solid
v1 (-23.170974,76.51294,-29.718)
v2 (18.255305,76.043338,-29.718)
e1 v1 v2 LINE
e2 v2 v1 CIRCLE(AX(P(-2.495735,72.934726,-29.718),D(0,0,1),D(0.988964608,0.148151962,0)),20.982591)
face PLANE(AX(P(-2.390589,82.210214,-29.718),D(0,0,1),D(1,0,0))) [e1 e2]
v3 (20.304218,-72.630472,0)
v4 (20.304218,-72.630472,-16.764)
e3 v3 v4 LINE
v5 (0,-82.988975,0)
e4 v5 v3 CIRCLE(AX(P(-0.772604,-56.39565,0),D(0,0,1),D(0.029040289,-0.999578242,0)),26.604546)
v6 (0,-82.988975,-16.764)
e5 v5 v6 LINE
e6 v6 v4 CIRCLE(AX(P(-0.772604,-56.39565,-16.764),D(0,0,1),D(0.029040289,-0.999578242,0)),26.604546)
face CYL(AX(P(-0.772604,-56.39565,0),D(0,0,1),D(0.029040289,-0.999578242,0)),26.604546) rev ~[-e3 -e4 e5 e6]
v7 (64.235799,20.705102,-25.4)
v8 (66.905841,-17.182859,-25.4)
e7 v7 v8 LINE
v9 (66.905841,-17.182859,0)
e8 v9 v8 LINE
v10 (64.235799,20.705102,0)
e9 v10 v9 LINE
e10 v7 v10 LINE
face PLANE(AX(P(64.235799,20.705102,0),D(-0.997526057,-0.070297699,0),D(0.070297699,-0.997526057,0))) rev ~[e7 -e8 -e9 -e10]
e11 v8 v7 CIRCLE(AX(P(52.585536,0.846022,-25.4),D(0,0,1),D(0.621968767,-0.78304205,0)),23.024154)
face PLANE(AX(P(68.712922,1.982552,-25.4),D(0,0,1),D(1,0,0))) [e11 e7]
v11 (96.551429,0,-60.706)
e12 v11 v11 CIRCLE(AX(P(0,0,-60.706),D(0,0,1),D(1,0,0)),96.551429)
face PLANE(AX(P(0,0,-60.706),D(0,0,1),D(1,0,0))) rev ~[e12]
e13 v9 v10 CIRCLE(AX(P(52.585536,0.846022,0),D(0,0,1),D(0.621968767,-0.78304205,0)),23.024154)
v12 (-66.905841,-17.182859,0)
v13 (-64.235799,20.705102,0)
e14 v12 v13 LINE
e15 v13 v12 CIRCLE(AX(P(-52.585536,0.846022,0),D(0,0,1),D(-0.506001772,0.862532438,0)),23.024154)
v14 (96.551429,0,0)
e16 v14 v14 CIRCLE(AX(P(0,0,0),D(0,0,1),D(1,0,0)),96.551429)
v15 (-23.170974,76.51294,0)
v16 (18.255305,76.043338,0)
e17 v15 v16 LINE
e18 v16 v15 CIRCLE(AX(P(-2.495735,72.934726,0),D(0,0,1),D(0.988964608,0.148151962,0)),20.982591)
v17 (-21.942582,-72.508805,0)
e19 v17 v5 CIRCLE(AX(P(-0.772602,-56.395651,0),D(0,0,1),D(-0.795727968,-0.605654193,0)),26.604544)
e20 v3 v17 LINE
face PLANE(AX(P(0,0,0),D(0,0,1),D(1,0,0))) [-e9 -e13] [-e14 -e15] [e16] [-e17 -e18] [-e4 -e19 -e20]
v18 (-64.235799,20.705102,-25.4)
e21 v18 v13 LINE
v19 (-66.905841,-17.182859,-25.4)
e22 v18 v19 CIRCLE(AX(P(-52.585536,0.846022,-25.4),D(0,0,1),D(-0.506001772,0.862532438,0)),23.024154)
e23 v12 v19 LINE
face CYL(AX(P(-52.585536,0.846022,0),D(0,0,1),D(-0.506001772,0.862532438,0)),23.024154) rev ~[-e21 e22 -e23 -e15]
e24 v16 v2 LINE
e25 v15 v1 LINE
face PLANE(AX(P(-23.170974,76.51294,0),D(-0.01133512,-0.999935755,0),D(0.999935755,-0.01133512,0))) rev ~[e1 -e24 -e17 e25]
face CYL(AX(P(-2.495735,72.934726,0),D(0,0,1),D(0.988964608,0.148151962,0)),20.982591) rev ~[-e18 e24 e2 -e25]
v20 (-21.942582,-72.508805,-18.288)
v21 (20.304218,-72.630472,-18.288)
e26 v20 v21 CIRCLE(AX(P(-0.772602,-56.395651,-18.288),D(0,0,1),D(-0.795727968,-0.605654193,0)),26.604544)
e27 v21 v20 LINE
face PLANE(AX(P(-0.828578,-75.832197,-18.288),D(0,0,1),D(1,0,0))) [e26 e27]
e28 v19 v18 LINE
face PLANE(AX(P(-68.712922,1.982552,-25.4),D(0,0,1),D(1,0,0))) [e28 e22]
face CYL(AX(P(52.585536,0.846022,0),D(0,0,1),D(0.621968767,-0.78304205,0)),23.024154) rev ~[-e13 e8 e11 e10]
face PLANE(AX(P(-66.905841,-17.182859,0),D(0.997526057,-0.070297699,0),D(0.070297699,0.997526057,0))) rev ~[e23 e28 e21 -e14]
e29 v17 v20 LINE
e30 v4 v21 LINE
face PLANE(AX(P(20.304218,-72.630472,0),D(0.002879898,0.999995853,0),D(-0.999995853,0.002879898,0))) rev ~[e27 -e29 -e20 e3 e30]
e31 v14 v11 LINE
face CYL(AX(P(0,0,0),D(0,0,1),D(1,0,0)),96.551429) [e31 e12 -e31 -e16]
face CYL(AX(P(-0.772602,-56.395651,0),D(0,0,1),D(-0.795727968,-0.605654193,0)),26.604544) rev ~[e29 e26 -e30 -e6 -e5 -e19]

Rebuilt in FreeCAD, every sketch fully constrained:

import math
import FreeCAD as App
import Part
import Sketcher
Q = App.Units.Quantity

doc = App.newDocument("Part")
body = doc.addObject("PartDesign::Body", "Body")

# Sketch on XY plane
sketch1 = body.newObject("Sketcher::SketchObject", "Sketch")
sketch1.AttachmentSupport = (doc.getObject("XY_Plane"), [""])
sketch1.MapMode = "FlatFace"
sketch1.addGeometry(Part.Circle(App.Vector(0, 0, 0), App.Vector(0, 0, 1), 96.551429), False)
sketch1.addConstraint([
    Sketcher.Constraint("Coincident", 0, 3, -1, 1),
    Sketcher.Constraint("Diameter", 0, Q("193.102858 mm")),
])
pad1 = body.newObject("PartDesign::Pad", "Pad")
pad1.Profile = sketch1
pad1.Length = Q("2.39 in")
pad1.Reversed = True

# Sketch on XY plane
sketch2 = body.newObject("Sketcher::SketchObject", "Sketch001")
sketch2.AttachmentSupport = (doc.getObject("XY_Plane"), [""])
sketch2.MapMode = "FlatFace"
sketch2.addGeometry([
    Part.LineSegment(App.Vector(0, -72.571998, 0), App.Vector(0, -82.988975, 0)),
    Part.ArcOfCircle(Part.Circle(App.Vector(-0.772604, -56.39565, 0), App.Vector(0, 0, 1), 26.604546), math.radians(-88.33588), math.radians(-37.605946)),
    Part.LineSegment(App.Vector(20.304218, -72.630472, 0), App.Vector(0, -72.571998, 0)),
], False)
sketch2.addConstraint([
    Sketcher.Constraint("Coincident", 0, 2, 1, 1),
    Sketcher.Constraint("Coincident", 1, 2, 2, 1),
    Sketcher.Constraint("Coincident", 2, 2, 0, 1),
    Sketcher.Constraint("Vertical", 0),
    Sketcher.Constraint("PointOnObject", 0, 2, -2),
    Sketcher.Constraint("Radius", 1, Q("26.604546 mm")),
    Sketcher.Constraint("DistanceY", 0, 2, 0, 1, Q("10.416977 mm")),
    Sketcher.Constraint("DistanceY", 1, 3, -1, 1, Q("56.39565 mm")),
    Sketcher.Constraint("DistanceY", 1, 2, -1, 1, Q("72.630472 mm")),
    Sketcher.Constraint("DistanceY", 2, 2, 1, 3, Q("16.176348 mm")),
])
pocket1 = body.newObject("PartDesign::Pocket", "Pocket")
pocket1.Profile = sketch2
pocket1.Length = Q("0.66 in")

# Sketch on XY plane
sketch3 = body.newObject("Sketcher::SketchObject", "Sketch002")
sketch3.AttachmentSupport = (doc.getObject("XY_Plane"), [""])
sketch3.MapMode = "FlatFace"
sketch3.addGeometry([
    Part.LineSegment(App.Vector(20.304218, -72.630472, 0), App.Vector(-21.942582, -72.508805, 0)),
    Part.ArcOfCircle(Part.Circle(App.Vector(-0.772602, -56.395651, 0), App.Vector(0, 0, 1), 26.604544), math.radians(-142.724068), math.radians(-37.605944)),
], False)
sketch3.addConstraint([
    Sketcher.Constraint("Coincident", 0, 1, 1, 2),
    Sketcher.Constraint("Coincident", 1, 1, 0, 2),
    Sketcher.Constraint("Radius", 1, Q("26.604544 mm")),
    Sketcher.Constraint("DistanceX", 1, 1, 0, 1, Q("42.2468 mm")),
    Sketcher.Constraint("DistanceY", 1, 3, -1, 1, Q("56.395651 mm")),
    Sketcher.Constraint("DistanceY", 0, 1, -1, 1, Q("72.630472 mm")),
    Sketcher.Constraint("DistanceX", 1, 1, -1, 1, Q("21.942582 mm")),
])
pocket2 = body.newObject("PartDesign::Pocket", "Pocket001")
pocket2.Profile = sketch3
pocket2.Length = Q("0.72 in")

# Sketch on XY plane
sketch4 = body.newObject("Sketcher::SketchObject", "Sketch003")
sketch4.AttachmentSupport = (doc.getObject("XY_Plane"), [""])
sketch4.MapMode = "FlatFace"
sketch4.addGeometry([
    Part.LineSegment(App.Vector(-23.170974, 76.51294, 0), App.Vector(18.255305, 76.043338, 0)),
    Part.ArcOfCircle(Part.Circle(App.Vector(-2.495735, 72.934726, 0), App.Vector(0, 0, 1), 20.982591), math.radians(8.519845), math.radians(170.181218)),
], False)
sketch4.addConstraint([
    Sketcher.Constraint("Coincident", 0, 1, 1, 2),
    Sketcher.Constraint("Coincident", 1, 1, 0, 2),
    Sketcher.Constraint("Radius", 1, Q("20.982591 mm")),
    Sketcher.Constraint("DistanceY", 1, 1, 0, 1, Q("0.469602 mm")),
    Sketcher.Constraint("Distance", 0, Q("41.428941 mm")),
    Sketcher.Constraint("DistanceY", -1, 1, 0, 1, Q("76.51294 mm")),
    Sketcher.Constraint("DistanceX", 1, 3, -1, 1, Q("2.495735 mm")),
])
pocket3 = body.newObject("PartDesign::Pocket", "Pocket002")
pocket3.Profile = sketch4
pocket3.Length = Q("1.17 in")

# Sketch on XY plane
sketch5 = body.newObject("Sketcher::SketchObject", "Sketch004")
sketch5.AttachmentSupport = (doc.getObject("XY_Plane"), [""])
sketch5.MapMode = "FlatFace"
sketch5.addGeometry([
    Part.LineSegment(App.Vector(64.235799, 20.705102, 0), App.Vector(66.905841, -17.182859, 0)),
    Part.ArcOfCircle(Part.Circle(App.Vector(52.585536, 0.846022, 0), App.Vector(0, 0, 1), 23.024154), math.radians(-51.539953), math.radians(59.602125)),
    Part.ArcOfCircle(Part.Circle(App.Vector(-52.585536, 0.846022, 0), App.Vector(0, 0, 1), 23.024154), math.radians(120.397875), math.radians(231.539953)),
    Part.LineSegment(App.Vector(-66.905841, -17.182859, 0), App.Vector(-64.235799, 20.705102, 0)),
], False)
sketch5.addConstraint([
    Sketcher.Constraint("Coincident", 0, 1, 1, 2),
    Sketcher.Constraint("Coincident", 1, 1, 0, 2),
    Sketcher.Constraint("Coincident", 2, 1, 3, 2),
    Sketcher.Constraint("Coincident", 3, 1, 2, 2),
    Sketcher.Constraint("Equal", 1, 2),
    Sketcher.Constraint("Symmetric", 1, 3, 2, 3, -2),
    Sketcher.Constraint("Horizontal", 0, 1, 2, 1),
    Sketcher.Constraint("Horizontal", 1, 1, 3, 1),
    Sketcher.Constraint("Radius", 1, Q("23.024154 mm")),
    Sketcher.Constraint("DistanceX", -1, 1, 0, 1, Q("64.235799 mm")),
    Sketcher.Constraint("DistanceY", -1, 1, 0, 1, Q("20.705102 mm")),
    Sketcher.Constraint("DistanceX", -1, 1, 1, 1, Q("66.905841 mm")),
    Sketcher.Constraint("DistanceY", 1, 1, -1, 1, Q("17.182859 mm")),
])
pocket4 = body.newObject("PartDesign::Pocket", "Pocket003")
pocket4.Profile = sketch5
pocket4.Length = Q("0.98 in")

# Sketch on XY plane
sketch6 = body.newObject("Sketcher::SketchObject", "Sketch005")
sketch6.AttachmentSupport = (doc.getObject("XY_Plane"), [""])
sketch6.MapMode = "FlatFace"
sketch6.addGeometry([
    Part.LineSegment(App.Vector(64.235799, 20.705102, 0), App.Vector(66.905841, -17.182859, 0)),
    Part.ArcOfCircle(Part.Circle(App.Vector(52.585536, 0.846022, 0), App.Vector(0, 0, 1), 23.024154), math.radians(-51.539953), math.radians(59.602125)),
    Part.ArcOfCircle(Part.Circle(App.Vector(-52.585536, 0.846022, 0), App.Vector(0, 0, 1), 23.024154), math.radians(120.397875), math.radians(231.539953)),
    Part.LineSegment(App.Vector(-66.905841, -17.182859, 0), App.Vector(-64.235799, 20.705102, 0)),
], False)
sketch6.addConstraint([
    Sketcher.Constraint("Coincident", 0, 1, 1, 2),
    Sketcher.Constraint("Coincident", 1, 1, 0, 2),
    Sketcher.Constraint("Coincident", 2, 1, 3, 2),
    Sketcher.Constraint("Coincident", 3, 1, 2, 2),
    Sketcher.Constraint("Equal", 1, 2),
    Sketcher.Constraint("Symmetric", 1, 3, 2, 3, -2),
    Sketcher.Constraint("Horizontal", 0, 1, 2, 1),
    Sketcher.Constraint("Horizontal", 1, 1, 3, 1),
    Sketcher.Constraint("Radius", 1, Q("23.024154 mm")),
    Sketcher.Constraint("DistanceX", -1, 1, 0, 1, Q("64.235799 mm")),
    Sketcher.Constraint("DistanceY", -1, 1, 0, 1, Q("20.705102 mm")),
    Sketcher.Constraint("DistanceX", -1, 1, 1, 1, Q("66.905841 mm")),
    Sketcher.Constraint("DistanceY", 1, 1, -1, 1, Q("17.182859 mm")),
])
pocket5 = body.newObject("PartDesign::Pocket", "Pocket004")
pocket5.Profile = sketch6
pocket5.Length = Q("1 in")

doc.recompute()
